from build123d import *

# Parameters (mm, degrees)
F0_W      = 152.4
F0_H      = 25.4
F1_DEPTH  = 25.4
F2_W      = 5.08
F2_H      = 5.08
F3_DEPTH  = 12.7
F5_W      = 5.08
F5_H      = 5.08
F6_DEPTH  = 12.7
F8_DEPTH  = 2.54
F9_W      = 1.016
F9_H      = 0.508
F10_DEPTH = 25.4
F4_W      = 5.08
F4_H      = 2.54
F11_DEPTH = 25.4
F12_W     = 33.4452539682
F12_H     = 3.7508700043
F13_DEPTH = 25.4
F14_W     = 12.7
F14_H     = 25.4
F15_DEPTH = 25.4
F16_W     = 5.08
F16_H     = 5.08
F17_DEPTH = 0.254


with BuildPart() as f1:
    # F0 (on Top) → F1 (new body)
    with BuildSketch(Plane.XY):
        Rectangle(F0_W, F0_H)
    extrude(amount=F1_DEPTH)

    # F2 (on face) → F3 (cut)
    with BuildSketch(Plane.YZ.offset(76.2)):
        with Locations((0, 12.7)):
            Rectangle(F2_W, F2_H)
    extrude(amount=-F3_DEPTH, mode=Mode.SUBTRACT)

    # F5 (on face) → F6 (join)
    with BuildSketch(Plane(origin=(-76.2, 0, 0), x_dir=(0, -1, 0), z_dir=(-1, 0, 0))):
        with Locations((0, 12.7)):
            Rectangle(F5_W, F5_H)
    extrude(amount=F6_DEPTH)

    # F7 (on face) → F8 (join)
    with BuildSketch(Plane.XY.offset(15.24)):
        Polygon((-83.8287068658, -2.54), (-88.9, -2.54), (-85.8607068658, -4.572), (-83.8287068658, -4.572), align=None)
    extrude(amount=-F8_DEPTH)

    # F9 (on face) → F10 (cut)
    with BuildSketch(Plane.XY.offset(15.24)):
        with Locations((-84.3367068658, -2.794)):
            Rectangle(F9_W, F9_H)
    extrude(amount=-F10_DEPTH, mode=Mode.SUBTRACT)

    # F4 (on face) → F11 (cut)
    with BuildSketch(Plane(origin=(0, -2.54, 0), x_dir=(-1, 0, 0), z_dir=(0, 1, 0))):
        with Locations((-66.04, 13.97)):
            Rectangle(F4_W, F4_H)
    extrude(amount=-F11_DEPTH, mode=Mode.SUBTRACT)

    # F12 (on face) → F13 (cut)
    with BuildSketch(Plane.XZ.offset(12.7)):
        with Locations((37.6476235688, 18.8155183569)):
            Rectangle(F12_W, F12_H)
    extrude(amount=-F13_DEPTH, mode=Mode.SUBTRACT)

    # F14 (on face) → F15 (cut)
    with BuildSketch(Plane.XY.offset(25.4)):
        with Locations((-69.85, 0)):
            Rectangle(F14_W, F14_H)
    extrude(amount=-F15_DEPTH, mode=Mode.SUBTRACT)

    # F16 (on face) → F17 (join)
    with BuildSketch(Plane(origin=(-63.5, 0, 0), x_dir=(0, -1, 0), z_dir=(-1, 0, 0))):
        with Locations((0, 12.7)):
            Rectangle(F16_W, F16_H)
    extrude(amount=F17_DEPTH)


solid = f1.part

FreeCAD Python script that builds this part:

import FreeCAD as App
import Part
import Sketcher

V = App.Vector
Q = App.Units.Quantity


def add_polygon(sketch, points):
    """Adds a closed chain of lines whose ends are joined by coincident constraints."""
    first, n = sketch.GeometryCount, len(points)
    for a, b in zip(points, points[1:] + points[:1]):
        sketch.addGeometry(Part.LineSegment(App.Vector(*a, 0), App.Vector(*b, 0)), False)
    for i in range(n):
        sketch.addConstraint(Sketcher.Constraint("Coincident", first + i, 2, first + (i + 1) % n, 1))

doc = App.newDocument("Part")
body = doc.addObject("PartDesign::Body", "Body")
body.AllowCompound = True

sketch1 = body.newObject("Sketcher::SketchObject", "Sketch")
sketch1.AttachmentSupport = (doc.getObject("XY_Plane"), [""])
sketch1.MapMode = "FlatFace"
add_polygon(sketch1, [(-76, 13), (-76, -13), (76, -13), (76, 13)])
sketch1.addConstraint([
    Sketcher.Constraint("Vertical", 0),
    Sketcher.Constraint("Horizontal", 1),
    Sketcher.Constraint("Vertical", 2),
    Sketcher.Constraint("Horizontal", 3),
    Sketcher.Constraint("Symmetric", 0, 2, 2, 2, -1, 1),
    Sketcher.Constraint("DistanceX", 1, 1, 1, 2, Q("6 in")),
    Sketcher.Constraint("DistanceY", 0, 2, 0, 1, Q("1 in")),
])
pad1 = body.newObject("PartDesign::Pad", "Pad")
pad1.Profile = sketch1
pad1.Length = Q("1 in")

sketch2 = body.newObject("Sketcher::SketchObject", "Sketch001")
sketch2.AttachmentSupport = (doc.getObject("YZ_Plane"), [""])
sketch2.MapMode = "FlatFace"
sketch2.AttachmentOffset = App.Placement(V(0, 0, 3 * 25.4), App.Rotation())
add_polygon(sketch2, [(-3, 15), (-3, 10), (3, 10), (3, 15)])
sketch2.addConstraint([
    Sketcher.Constraint("Vertical", 0),
    Sketcher.Constraint("Horizontal", 1),
    Sketcher.Constraint("Vertical", 2),
    Sketcher.Constraint("Horizontal", 3),
    Sketcher.Constraint("Equal", 3, 0),
    Sketcher.Constraint("DistanceX", 1, 1, 1, 2, Q("0.2 in")),
    Sketcher.Constraint("DistanceX", 0, 2, -1, 1, Q("0.1 in")),
    Sketcher.Constraint("DistanceY", -1, 1, 0, 2, Q("0.4 in")),
])
pocket1 = body.newObject("PartDesign::Pocket", "Pocket")
pocket1.Profile = sketch2
pocket1.Length = Q("0.5 in")

sketch3 = body.newObject("Sketcher::SketchObject", "Sketch002")
sketch3.AttachmentSupport = (doc.getObject("YZ_Plane"), [""])
sketch3.MapMode = "FlatFace"
sketch3.AttachmentOffset = App.Placement(V(0, 0, -3 * 25.4), App.Rotation())
add_polygon(sketch3, [(3, 15), (3, 10), (-3, 10), (-3, 15)])
sketch3.addConstraint([
    Sketcher.Constraint("Vertical", 0),
    Sketcher.Constraint("Horizontal", 1),
    Sketcher.Constraint("Vertical", 2),
    Sketcher.Constraint("Horizontal", 3),
    Sketcher.Constraint("Equal", 3, 0),
    Sketcher.Constraint("DistanceX", 1, 2, 1, 1, Q("0.2 in")),
    Sketcher.Constraint("DistanceX", -1, 1, 0, 2, Q("0.1 in")),
    Sketcher.Constraint("DistanceY", -1, 1, 0, 2, Q("0.4 in")),
])
pad2 = body.newObject("PartDesign::Pad", "Pad001")
pad2.Profile = sketch3
pad2.Length = Q("0.5 in")
pad2.Reversed = True

sketch4 = body.newObject("Sketcher::SketchObject", "Sketch003")
sketch4.AttachmentSupport = (doc.getObject("XY_Plane"), [""])
sketch4.MapMode = "FlatFace"
sketch4.AttachmentOffset = App.Placement(V(0, 0, 0.6 * 25.4), App.Rotation())
add_polygon(sketch4, [(-83.8, -2.5), (-88.9, -2.5), (-85.9, -4.6), (-83.8, -4.6)])
sketch4.addConstraint([
    Sketcher.Constraint("Horizontal", 0),
    Sketcher.Constraint("Horizontal", 2),
    Sketcher.Constraint("Vertical", 3),
    Sketcher.Constraint("Equal", 2, 3),
    Sketcher.Constraint("DistanceX", 2, 1, 2, 2, Q("0.08 in")),
    Sketcher.Constraint("DistanceX", 0, 2, -1, 1, Q("3.5 in")),
    Sketcher.Constraint("DistanceY", 0, 2, -1, 1, Q("0.1 in")),
    Sketcher.Constraint("Distance", 1, Q("3.655999 mm")),
])
pad3 = body.newObject("PartDesign::Pad", "Pad002")
pad3.Profile = sketch4
pad3.Length = Q("0.1 in")
pad3.Reversed = True

sketch5 = body.newObject("Sketcher::SketchObject", "Sketch004")
sketch5.AttachmentSupport = (doc.getObject("XY_Plane"), [""])
sketch5.MapMode = "FlatFace"
sketch5.AttachmentOffset = App.Placement(V(0, 0, 0.6 * 25.4), App.Rotation())
add_polygon(sketch5, [(-84.8, -2.5), (-84.8, -3), (-83.8, -3), (-83.8, -2.5)])
sketch5.addConstraint([
    Sketcher.Constraint("Vertical", 0),
    Sketcher.Constraint("Horizontal", 1),
    Sketcher.Constraint("Vertical", 2),
    Sketcher.Constraint("Horizontal", 3),
    Sketcher.Constraint("DistanceX", 1, 1, 1, 2, Q("0.04 in")),
    Sketcher.Constraint("DistanceY", 0, 2, 0, 1, Q("0.02 in")),
    Sketcher.Constraint("DistanceY", 2, 2, -1, 1, Q("0.1 in")),
    Sketcher.Constraint("DistanceX", 0, 2, -1, 1, Q("84.844707 mm")),
])
pocket2 = body.newObject("PartDesign::Pocket", "Pocket001")
pocket2.Profile = sketch5
pocket2.Length = Q("1 in")

sketch6 = body.newObject("Sketcher::SketchObject", "Sketch005")
sketch6.AttachmentSupport = (doc.getObject("XZ_Plane"), [""])
sketch6.MapMode = "FlatFace"
sketch6.AttachmentOffset = App.Placement(V(0, 0, 0.1 * 25.4), App.Rotation())
add_polygon(sketch6, [(68.6, 15.2), (68.6, 12.7), (63.5, 12.7), (63.5, 15.2)])
sketch6.addConstraint([
    Sketcher.Constraint("Vertical", 0),
    Sketcher.Constraint("Horizontal", 1),
    Sketcher.Constraint("Vertical", 2),
    Sketcher.Constraint("Horizontal", 3),
    Sketcher.Constraint("DistanceX", 1, 2, 1, 1, Q("0.2 in")),
    Sketcher.Constraint("DistanceY", 0, 2, 0, 1, Q("0.1 in")),
    Sketcher.Constraint("DistanceX", -1, 1, 0, 2, Q("2.7 in")),
    Sketcher.Constraint("DistanceY", -1, 1, 0, 2, Q("0.5 in")),
])
pocket3 = body.newObject("PartDesign::Pocket", "Pocket002")
pocket3.Profile = sketch6
pocket3.Length = Q("1 in")
pocket3.Reversed = True

sketch7 = body.newObject("Sketcher::SketchObject", "Sketch006")
sketch7.AttachmentSupport = (doc.getObject("XZ_Plane"), [""])
sketch7.MapMode = "FlatFace"
sketch7.AttachmentOffset = App.Placement(V(0, 0, 0.5 * 25.4), App.Rotation())
add_polygon(sketch7, [(20.9, 20.7), (20.9, 16.9), (54.4, 16.9), (54.4, 20.7)])
sketch7.addConstraint([
    Sketcher.Constraint("Vertical", 0),
    Sketcher.Constraint("Horizontal", 1),
    Sketcher.Constraint("Vertical", 2),
    Sketcher.Constraint("Horizontal", 3),
    Sketcher.Constraint("DistanceY", 0, 2, 0, 1, Q("3.75087 mm")),
    Sketcher.Constraint("DistanceX", 1, 1, 1, 2, Q("33.445254 mm")),
    Sketcher.Constraint("DistanceX", -1, 1, 1, 2, Q("54.370251 mm")),
    Sketcher.Constraint("DistanceY", -1, 1, 0, 2, Q("16.940083 mm")),
])
pocket4 = body.newObject("PartDesign::Pocket", "Pocket003")
pocket4.Profile = sketch7
pocket4.Length = Q("1 in")

sketch8 = body.newObject("Sketcher::SketchObject", "Sketch007")
sketch8.AttachmentSupport = (doc.getObject("XY_Plane"), [""])
sketch8.MapMode = "FlatFace"
sketch8.AttachmentOffset = App.Placement(V(0, 0, 1 * 25.4), App.Rotation())
add_polygon(sketch8, [(-76, 13), (-76, -13), (-64, -13), (-64, 13)])
sketch8.addConstraint([
    Sketcher.Constraint("Vertical", 0),
    Sketcher.Constraint("Horizontal", 1),
    Sketcher.Constraint("Vertical", 2),
    Sketcher.Constraint("Horizontal", 3),
    Sketcher.Constraint("DistanceY", 0, 2, 0, 1, Q("1 in")),
    Sketcher.Constraint("DistanceX", 1, 1, 1, 2, Q("0.5 in")),
    Sketcher.Constraint("DistanceX", 0, 2, -1, 1, Q("3 in")),
    Sketcher.Constraint("DistanceY", 0, 2, -1, 1, Q("0.5 in")),
])
pocket5 = body.newObject("PartDesign::Pocket", "Pocket004")
pocket5.Profile = sketch8
pocket5.Length = Q("1 in")

sketch9 = body.newObject("Sketcher::SketchObject", "Sketch008")
sketch9.AttachmentSupport = (doc.getObject("YZ_Plane"), [""])
sketch9.MapMode = "FlatFace"
sketch9.AttachmentOffset = App.Placement(V(0, 0, -2.5 * 25.4), App.Rotation())
add_polygon(sketch9, [(3, 15), (3, 10), (-3, 10), (-3, 15)])
sketch9.addConstraint([
    Sketcher.Constraint("Vertical", 0),
    Sketcher.Constraint("Horizontal", 1),
    Sketcher.Constraint("Vertical", 2),
    Sketcher.Constraint("Horizontal", 3),
    Sketcher.Constraint("Equal", 3, 0),
    Sketcher.Constraint("DistanceX", 1, 2, 1, 1, Q("0.2 in")),
    Sketcher.Constraint("DistanceX", -1, 1, 0, 2, Q("0.1 in")),
    Sketcher.Constraint("DistanceY", -1, 1, 0, 2, Q("0.4 in")),
])
pad4 = body.newObject("PartDesign::Pad", "Pad003")
pad4.Profile = sketch9
pad4.Length = Q("0.01 in")
pad4.Reversed = True

doc.recompute()
